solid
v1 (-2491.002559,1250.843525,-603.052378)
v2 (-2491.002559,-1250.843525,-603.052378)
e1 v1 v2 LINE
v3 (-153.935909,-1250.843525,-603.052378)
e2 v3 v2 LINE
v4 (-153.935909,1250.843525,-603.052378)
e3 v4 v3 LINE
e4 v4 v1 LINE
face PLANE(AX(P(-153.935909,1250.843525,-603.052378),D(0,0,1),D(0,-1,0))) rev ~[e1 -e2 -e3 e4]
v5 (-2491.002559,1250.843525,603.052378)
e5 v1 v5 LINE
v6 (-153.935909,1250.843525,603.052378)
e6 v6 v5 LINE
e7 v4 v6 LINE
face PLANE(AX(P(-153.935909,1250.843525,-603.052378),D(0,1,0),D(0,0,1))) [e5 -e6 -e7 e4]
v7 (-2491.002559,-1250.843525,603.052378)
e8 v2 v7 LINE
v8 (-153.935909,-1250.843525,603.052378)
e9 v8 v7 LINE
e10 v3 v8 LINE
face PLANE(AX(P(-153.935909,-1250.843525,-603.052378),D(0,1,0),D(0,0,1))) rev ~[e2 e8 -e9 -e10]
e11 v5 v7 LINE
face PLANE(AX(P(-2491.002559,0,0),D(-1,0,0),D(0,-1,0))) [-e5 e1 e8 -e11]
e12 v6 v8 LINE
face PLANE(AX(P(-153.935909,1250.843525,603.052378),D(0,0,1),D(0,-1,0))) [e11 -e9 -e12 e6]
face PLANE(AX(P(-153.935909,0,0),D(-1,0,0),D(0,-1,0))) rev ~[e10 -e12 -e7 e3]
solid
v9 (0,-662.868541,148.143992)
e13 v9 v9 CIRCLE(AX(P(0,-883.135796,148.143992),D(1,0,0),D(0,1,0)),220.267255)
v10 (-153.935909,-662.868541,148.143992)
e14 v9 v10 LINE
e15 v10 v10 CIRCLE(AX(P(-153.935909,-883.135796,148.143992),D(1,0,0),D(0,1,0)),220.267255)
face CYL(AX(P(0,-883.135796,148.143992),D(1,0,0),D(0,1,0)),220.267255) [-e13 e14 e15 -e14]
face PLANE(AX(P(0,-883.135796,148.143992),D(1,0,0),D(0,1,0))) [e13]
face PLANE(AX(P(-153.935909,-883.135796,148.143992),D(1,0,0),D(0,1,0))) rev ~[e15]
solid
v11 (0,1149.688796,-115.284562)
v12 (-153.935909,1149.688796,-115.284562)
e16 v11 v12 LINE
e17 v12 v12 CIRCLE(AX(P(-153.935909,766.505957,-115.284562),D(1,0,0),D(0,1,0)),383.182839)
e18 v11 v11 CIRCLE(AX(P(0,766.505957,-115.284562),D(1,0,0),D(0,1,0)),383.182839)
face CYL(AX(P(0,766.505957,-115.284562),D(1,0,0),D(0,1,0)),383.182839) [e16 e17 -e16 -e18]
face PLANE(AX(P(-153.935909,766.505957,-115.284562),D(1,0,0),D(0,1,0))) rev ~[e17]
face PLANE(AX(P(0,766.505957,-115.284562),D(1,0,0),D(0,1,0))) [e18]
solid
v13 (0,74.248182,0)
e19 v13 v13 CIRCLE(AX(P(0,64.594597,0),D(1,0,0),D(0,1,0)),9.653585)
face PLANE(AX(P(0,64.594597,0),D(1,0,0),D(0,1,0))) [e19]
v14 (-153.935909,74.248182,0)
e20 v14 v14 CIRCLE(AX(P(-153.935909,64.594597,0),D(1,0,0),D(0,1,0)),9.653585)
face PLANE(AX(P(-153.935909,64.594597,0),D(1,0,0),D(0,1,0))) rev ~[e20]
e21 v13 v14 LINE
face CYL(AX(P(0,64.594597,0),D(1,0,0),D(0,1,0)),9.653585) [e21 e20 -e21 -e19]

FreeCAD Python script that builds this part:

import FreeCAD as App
import Part
import Sketcher

V = App.Vector


def add_polygon(sketch, points):
    """Adds a closed chain of lines whose ends are joined by coincident constraints."""
    first, n = sketch.GeometryCount, len(points)
    for a, b in zip(points, points[1:] + points[:1]):
        sketch.addGeometry(Part.LineSegment(App.Vector(*a, 0), App.Vector(*b, 0)), False)
    for i in range(n):
        sketch.addConstraint(Sketcher.Constraint("Coincident", first + i, 2, first + (i + 1) % n, 1))

doc = App.newDocument("Part")
params = doc.addObject("Spreadsheet::Sheet", "Params")
for row, (alias, value) in enumerate([
    ("pad1_length", "153.935909 mm"),
    ("pad2_length", "2337.06665 mm"),
], start=1):
    params.set(f"A{row}", alias)
    params.set(f"B{row}", "=" + value)
    params.setAlias(f"B{row}", alias)

body = doc.addObject("PartDesign::Body", "Body")
body.AllowCompound = True

# Sketch on YZ plane
sketch1 = body.newObject("Sketcher::SketchObject", "Sketch")
sketch1.AttachmentSupport = (doc.getObject("YZ_Plane"), [""])
sketch1.MapMode = "FlatFace"
sketch1.addGeometry(Part.Circle(V(65, 0, 0), V(0, 0, 1), 10), False)
sketch1.addGeometry(Part.Circle(V(767, -115, 0), V(0, 0, 1), 383), False)
sketch1.addGeometry(Part.Circle(V(-883, 148, 0), V(0, 0, 1), 220), False)
sketch1.addConstraint(Sketcher.Constraint("PointOnObject", 0, 3, -1))
sketch1.addConstraint(Sketcher.Constraint("Diameter", 0, 19.30717))
sketch1.addConstraint(Sketcher.Constraint("Diameter", 1, 766.365678))
sketch1.addConstraint(Sketcher.Constraint("Diameter", 2, 440.53451))
sketch1.addConstraint(Sketcher.Constraint("DistanceY", 1, 3, -1, 1, 115.284562))
sketch1.addConstraint(Sketcher.Constraint("DistanceY", -1, 1, 2, 3, 148.143992))
sketch1.addConstraint(Sketcher.Constraint("DistanceX", 0, 3, 1, 3, 701.91136))
sketch1.addConstraint(Sketcher.Constraint("DistanceX", -1, 1, 0, 3, 64.594597))
sketch1.addConstraint(Sketcher.Constraint("DistanceX", 2, 3, -1, 1, 883.135796))
pad1 = body.newObject("PartDesign::Pad", "Pad")
pad1.Profile = sketch1
pad1.setExpression("Length", "Params.pad1_length")
pad1.Reversed = True
body2 = doc.addObject("PartDesign::Body", "Body001")

# Sketch on YZ plane
sketch2 = body2.newObject("Sketcher::SketchObject", "Sketch001")
sketch2.AttachmentSupport = (doc.getObject("YZ_Plane001"), [""])
sketch2.MapMode = "FlatFace"
sketch2.AttachmentOffset = App.Placement(V(0, 0, -153.935909), App.Rotation())
add_polygon(sketch2, [(1251, 603), (1251, -603), (-1251, -603), (-1251, 603)])  # lines 0-3
sketch2.addConstraint(Sketcher.Constraint("Vertical", 0))
sketch2.addConstraint(Sketcher.Constraint("Horizontal", 1))
sketch2.addConstraint(Sketcher.Constraint("Vertical", 2))
sketch2.addConstraint(Sketcher.Constraint("Horizontal", 3))
sketch2.addConstraint(Sketcher.Constraint("Symmetric", 0, 2, 2, 2, -1, 1))
sketch2.addConstraint(Sketcher.Constraint("DistanceX", 1, 2, 1, 1, 2501.68705))
sketch2.addConstraint(Sketcher.Constraint("DistanceY", 0, 2, 0, 1, 1206.104756))
pad2 = body2.newObject("PartDesign::Pad", "Pad001")
pad2.Profile = sketch2
pad2.setExpression("Length", "Params.pad2_length")
pad2.Reversed = True

doc.recompute()
